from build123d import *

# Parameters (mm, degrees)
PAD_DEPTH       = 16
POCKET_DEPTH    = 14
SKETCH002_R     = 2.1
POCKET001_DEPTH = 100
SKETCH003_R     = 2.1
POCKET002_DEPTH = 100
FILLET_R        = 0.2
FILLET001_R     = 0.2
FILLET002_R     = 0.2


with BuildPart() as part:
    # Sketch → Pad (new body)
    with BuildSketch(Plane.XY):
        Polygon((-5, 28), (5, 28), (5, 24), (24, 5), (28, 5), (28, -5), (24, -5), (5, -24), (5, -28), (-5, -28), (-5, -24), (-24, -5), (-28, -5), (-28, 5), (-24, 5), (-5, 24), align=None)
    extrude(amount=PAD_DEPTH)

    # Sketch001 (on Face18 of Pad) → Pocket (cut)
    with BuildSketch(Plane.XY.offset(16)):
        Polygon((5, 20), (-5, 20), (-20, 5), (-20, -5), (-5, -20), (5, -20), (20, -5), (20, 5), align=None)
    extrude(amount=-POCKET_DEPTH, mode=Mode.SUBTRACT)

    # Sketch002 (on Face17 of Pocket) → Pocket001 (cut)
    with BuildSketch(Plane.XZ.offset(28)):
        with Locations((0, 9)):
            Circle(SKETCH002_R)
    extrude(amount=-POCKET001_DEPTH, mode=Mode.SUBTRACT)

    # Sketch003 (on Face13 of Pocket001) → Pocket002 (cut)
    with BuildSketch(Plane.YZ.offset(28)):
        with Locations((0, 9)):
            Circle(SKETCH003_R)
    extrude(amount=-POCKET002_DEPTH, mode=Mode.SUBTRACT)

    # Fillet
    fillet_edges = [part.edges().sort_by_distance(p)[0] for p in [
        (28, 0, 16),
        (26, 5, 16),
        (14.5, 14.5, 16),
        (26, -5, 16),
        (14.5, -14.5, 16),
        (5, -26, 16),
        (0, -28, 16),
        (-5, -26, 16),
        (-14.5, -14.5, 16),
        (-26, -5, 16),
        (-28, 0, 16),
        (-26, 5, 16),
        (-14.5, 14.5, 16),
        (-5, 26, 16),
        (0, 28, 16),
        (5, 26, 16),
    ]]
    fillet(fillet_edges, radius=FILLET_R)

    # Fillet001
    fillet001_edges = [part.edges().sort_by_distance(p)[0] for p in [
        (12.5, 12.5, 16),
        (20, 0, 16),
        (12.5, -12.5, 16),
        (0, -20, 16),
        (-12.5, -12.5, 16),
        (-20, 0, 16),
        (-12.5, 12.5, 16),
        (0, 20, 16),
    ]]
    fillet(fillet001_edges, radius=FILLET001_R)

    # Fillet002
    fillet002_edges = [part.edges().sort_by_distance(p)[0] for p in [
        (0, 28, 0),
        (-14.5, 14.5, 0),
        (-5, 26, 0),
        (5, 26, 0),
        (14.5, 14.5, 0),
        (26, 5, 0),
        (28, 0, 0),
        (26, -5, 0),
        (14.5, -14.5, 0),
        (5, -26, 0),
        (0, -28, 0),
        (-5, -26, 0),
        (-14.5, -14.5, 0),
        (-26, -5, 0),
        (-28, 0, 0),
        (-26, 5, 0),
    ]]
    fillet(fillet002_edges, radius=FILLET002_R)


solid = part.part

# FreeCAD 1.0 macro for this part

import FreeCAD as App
import Part
import Sketcher
from FreeCAD import Vector
Q = App.Units.Quantity


def edges_at(feature, points):
    """Names of the edges that pass closest to the given points."""
    edges = feature.Shape.Edges
    near = lambda p: min(range(len(edges)), key=lambda i: edges[i].distToShape(Part.Vertex(*p))[0])
    return sorted({f"Edge{near(p) + 1}" for p in points})


def add_polygon(sketch, points):
    """Adds a closed chain of lines whose ends are joined by coincident constraints."""
    first, n = sketch.GeometryCount, len(points)
    for a, b in zip(points, points[1:] + points[:1]):
        sketch.addGeometry(Part.LineSegment(App.Vector(*a, 0), App.Vector(*b, 0)), False)
    for i in range(n):
        sketch.addConstraint(Sketcher.Constraint("Coincident", first + i, 2, first + (i + 1) % n, 1))

doc = App.newDocument("Part")
body = doc.addObject("PartDesign::Body", "Body")

sketch1 = body.newObject("Sketcher::SketchObject", "Sketch")
sketch1.AttachmentSupport = (doc.getObject("XY_Plane"), [""])
sketch1.MapMode = "FlatFace"
add_polygon(sketch1, [(5, 28), (-5, 28), (-5, 24), (-24, 5), (-28, 5), (-28, -5), (-24, -5), (-5, -24), (-5, -28), (5, -28), (5, -24), (24, -5), (28, -5), (28, 5), (24, 5), (5, 24)])
sketch1.addConstraint(Sketcher.Constraint("Horizontal", 0))
sketch1.addConstraint(Sketcher.Constraint("Vertical", 1))
sketch1.addConstraint(Sketcher.Constraint("Horizontal", 3))
sketch1.addConstraint(Sketcher.Constraint("Vertical", 4))
sketch1.addConstraint(Sketcher.Constraint("Horizontal", 5))
sketch1.addConstraint(Sketcher.Constraint("Vertical", 7))
sketch1.addConstraint(Sketcher.Constraint("Horizontal", 8))
sketch1.addConstraint(Sketcher.Constraint("Vertical", 9))
sketch1.addConstraint(Sketcher.Constraint("Horizontal", 11))
sketch1.addConstraint(Sketcher.Constraint("Vertical", 12))
sketch1.addConstraint(Sketcher.Constraint("Horizontal", 13))
sketch1.addConstraint(Sketcher.Constraint("Vertical", 15))
sketch1.addConstraint(Sketcher.Constraint("Symmetric", 0, 2, 8, 2, -1, 1))
sketch1.addConstraint(Sketcher.Constraint("Symmetric", 2, 2, 10, 2, -1, 1))
sketch1.addConstraint(Sketcher.Constraint("Symmetric", 4, 2, 12, 2, -1, 1))
sketch1.addConstraint(Sketcher.Constraint("Symmetric", 6, 2, 14, 2, -1, 1))
sketch1.addConstraint(Sketcher.Constraint("Symmetric", 6, 2, 9, 2, -2))
sketch1.addConstraint(Sketcher.Constraint("Symmetric", 5, 2, 10, 2, -2))
sketch1.addConstraint(Sketcher.Constraint("Perpendicular", 2, 6))
sketch1.addConstraint(Sketcher.Constraint("Perpendicular", 6, 10))
sketch1.addConstraint(Sketcher.Constraint("Perpendicular", 10, 14))
sketch1.addConstraint(Sketcher.Constraint("Equal", 13, 1))
sketch1.addConstraint(Sketcher.Constraint("Equal", 8, 4))
sketch1.addConstraint(Sketcher.Constraint("DistanceX", 0, 2, 0, 1, Q("10 mm")))
sketch1.addConstraint(Sketcher.Constraint("DistanceX", 3, 2, 3, 1, Q("4 mm")))
sketch1.addConstraint(Sketcher.Constraint("DistanceY", -1, 1, 0, 2, Q("28 mm")))
pad1 = body.newObject("PartDesign::Pad", "Pad")
pad1.Profile = sketch1
pad1.Length = 16

sketch2 = body.newObject("Sketcher::SketchObject", "Sketch001")
sketch2.AttachmentSupport = (doc.getObject("XY_Plane"), [""])
sketch2.MapMode = "FlatFace"
sketch2.AttachmentOffset = App.Placement(Vector(0, 0, 16), App.Rotation())
add_polygon(sketch2, [(5, 20), (-5, 20), (-20, 5), (-20, -5), (-5, -20), (5, -20), (20, -5), (20, 5)])
sketch2.addConstraint(Sketcher.Constraint("Horizontal", 0))
sketch2.addConstraint(Sketcher.Constraint("Vertical", 2))
sketch2.addConstraint(Sketcher.Constraint("Horizontal", 4))
sketch2.addConstraint(Sketcher.Constraint("Vertical", 6))
sketch2.addConstraint(Sketcher.Constraint("Symmetric", 0, 2, 4, 2, -1, 1))
sketch2.addConstraint(Sketcher.Constraint("Symmetric", 1, 2, 5, 2, -1, 1))
sketch2.addConstraint(Sketcher.Constraint("Perpendicular", 1, 3))
sketch2.addConstraint(Sketcher.Constraint("Perpendicular", 5, 7))
sketch2.addConstraint(Sketcher.Constraint("Horizontal", 2, 2, 5, 2))
sketch2.addConstraint(Sketcher.Constraint("Horizontal", 1, 2, 6, 2))
sketch2.addConstraint(Sketcher.Constraint("Vertical", 0, 2, 3, 2))
sketch2.addConstraint(Sketcher.Constraint("Equal", 4, 2))
sketch2.addConstraint(Sketcher.Constraint("DistanceX", 0, 2, 0, 1, Q("10 mm")))
sketch2.addConstraint(Sketcher.Constraint("DistanceY", -1, 1, 0, 2, Q("20 mm")))
pocket1 = body.newObject("PartDesign::Pocket", "Pocket")
pocket1.Profile = sketch2
pocket1.Length = 14

sketch3 = body.newObject("Sketcher::SketchObject", "Sketch002")
sketch3.AttachmentSupport = (doc.getObject("XZ_Plane"), [""])
sketch3.MapMode = "FlatFace"
sketch3.AttachmentOffset = App.Placement(Vector(0, 0, 28), App.Rotation())
sketch3.addGeometry(Part.Circle(Vector(0, 9, 0), Vector(0, 0, 1), 2.1), False)
sketch3.addConstraint(Sketcher.Constraint("PointOnObject", 0, 3, -2))
sketch3.addConstraint(Sketcher.Constraint("Diameter", 0, Q("4.2 mm")))
sketch3.addConstraint(Sketcher.Constraint("DistanceY", -1, 1, 0, 3, Q("9 mm")))
pocket2 = body.newObject("PartDesign::Pocket", "Pocket001")
pocket2.Profile = sketch3
pocket2.Length = 100

sketch4 = body.newObject("Sketcher::SketchObject", "Sketch003")
sketch4.AttachmentSupport = (doc.getObject("YZ_Plane"), [""])
sketch4.MapMode = "FlatFace"
sketch4.AttachmentOffset = App.Placement(Vector(0, 0, 28), App.Rotation())
sketch4.addGeometry(Part.Circle(Vector(0, 9, 0), Vector(0, 0, 1), 2.1), False)
sketch4.addConstraint(Sketcher.Constraint("PointOnObject", 0, 3, -2))
sketch4.addConstraint(Sketcher.Constraint("Diameter", 0, Q("4.2 mm")))
sketch4.addConstraint(Sketcher.Constraint("DistanceY", -1, 1, 0, 3, Q("9 mm")))
pocket3 = body.newObject("PartDesign::Pocket", "Pocket002")
pocket3.Profile = sketch4
pocket3.Length = 100
doc.recompute()

fillet = body.newObject("PartDesign::Fillet", "Fillet")
fillet.Base = (pocket3, edges_at(pocket3, [
    (28, 0, 16),
    (26, 5, 16),
    (14.5, 14.5, 16),
    (26, -5, 16),
    (14.5, -14.5, 16),
    (5, -26, 16),
    (0, -28, 16),
    (-5, -26, 16),
    (-14.5, -14.5, 16),
    (-26, -5, 16),
    (-28, 0, 16),
    (-26, 5, 16),
    (-14.5, 14.5, 16),
    (-5, 26, 16),
    (0, 28, 16),
    (5, 26, 16),
]))
fillet.Radius = 0.2
doc.recompute()

fillet2 = body.newObject("PartDesign::Fillet", "Fillet001")
fillet2.Base = (fillet, edges_at(fillet, [
    (12.5, 12.5, 16),
    (20, 0, 16),
    (12.5, -12.5, 16),
    (0, -20, 16),
    (-12.5, -12.5, 16),
    (-20, 0, 16),
    (-12.5, 12.5, 16),
    (0, 20, 16),
]))
fillet2.Radius = 0.2
doc.recompute()

fillet3 = body.newObject("PartDesign::Fillet", "Fillet002")
fillet3.Base = (fillet2, edges_at(fillet2, [
    (0, 28, 0),
    (-14.5, 14.5, 0),
    (-5, 26, 0),
    (5, 26, 0),
    (14.5, 14.5, 0),
    (26, 5, 0),
    (28, 0, 0),
    (26, -5, 0),
    (14.5, -14.5, 0),
    (5, -26, 0),
    (0, -28, 0),
    (-5, -26, 0),
    (-14.5, -14.5, 0),
    (-26, -5, 0),
    (-28, 0, 0),
    (-26, 5, 0),
]))
fillet3.Radius = 0.2

doc.recompute()
